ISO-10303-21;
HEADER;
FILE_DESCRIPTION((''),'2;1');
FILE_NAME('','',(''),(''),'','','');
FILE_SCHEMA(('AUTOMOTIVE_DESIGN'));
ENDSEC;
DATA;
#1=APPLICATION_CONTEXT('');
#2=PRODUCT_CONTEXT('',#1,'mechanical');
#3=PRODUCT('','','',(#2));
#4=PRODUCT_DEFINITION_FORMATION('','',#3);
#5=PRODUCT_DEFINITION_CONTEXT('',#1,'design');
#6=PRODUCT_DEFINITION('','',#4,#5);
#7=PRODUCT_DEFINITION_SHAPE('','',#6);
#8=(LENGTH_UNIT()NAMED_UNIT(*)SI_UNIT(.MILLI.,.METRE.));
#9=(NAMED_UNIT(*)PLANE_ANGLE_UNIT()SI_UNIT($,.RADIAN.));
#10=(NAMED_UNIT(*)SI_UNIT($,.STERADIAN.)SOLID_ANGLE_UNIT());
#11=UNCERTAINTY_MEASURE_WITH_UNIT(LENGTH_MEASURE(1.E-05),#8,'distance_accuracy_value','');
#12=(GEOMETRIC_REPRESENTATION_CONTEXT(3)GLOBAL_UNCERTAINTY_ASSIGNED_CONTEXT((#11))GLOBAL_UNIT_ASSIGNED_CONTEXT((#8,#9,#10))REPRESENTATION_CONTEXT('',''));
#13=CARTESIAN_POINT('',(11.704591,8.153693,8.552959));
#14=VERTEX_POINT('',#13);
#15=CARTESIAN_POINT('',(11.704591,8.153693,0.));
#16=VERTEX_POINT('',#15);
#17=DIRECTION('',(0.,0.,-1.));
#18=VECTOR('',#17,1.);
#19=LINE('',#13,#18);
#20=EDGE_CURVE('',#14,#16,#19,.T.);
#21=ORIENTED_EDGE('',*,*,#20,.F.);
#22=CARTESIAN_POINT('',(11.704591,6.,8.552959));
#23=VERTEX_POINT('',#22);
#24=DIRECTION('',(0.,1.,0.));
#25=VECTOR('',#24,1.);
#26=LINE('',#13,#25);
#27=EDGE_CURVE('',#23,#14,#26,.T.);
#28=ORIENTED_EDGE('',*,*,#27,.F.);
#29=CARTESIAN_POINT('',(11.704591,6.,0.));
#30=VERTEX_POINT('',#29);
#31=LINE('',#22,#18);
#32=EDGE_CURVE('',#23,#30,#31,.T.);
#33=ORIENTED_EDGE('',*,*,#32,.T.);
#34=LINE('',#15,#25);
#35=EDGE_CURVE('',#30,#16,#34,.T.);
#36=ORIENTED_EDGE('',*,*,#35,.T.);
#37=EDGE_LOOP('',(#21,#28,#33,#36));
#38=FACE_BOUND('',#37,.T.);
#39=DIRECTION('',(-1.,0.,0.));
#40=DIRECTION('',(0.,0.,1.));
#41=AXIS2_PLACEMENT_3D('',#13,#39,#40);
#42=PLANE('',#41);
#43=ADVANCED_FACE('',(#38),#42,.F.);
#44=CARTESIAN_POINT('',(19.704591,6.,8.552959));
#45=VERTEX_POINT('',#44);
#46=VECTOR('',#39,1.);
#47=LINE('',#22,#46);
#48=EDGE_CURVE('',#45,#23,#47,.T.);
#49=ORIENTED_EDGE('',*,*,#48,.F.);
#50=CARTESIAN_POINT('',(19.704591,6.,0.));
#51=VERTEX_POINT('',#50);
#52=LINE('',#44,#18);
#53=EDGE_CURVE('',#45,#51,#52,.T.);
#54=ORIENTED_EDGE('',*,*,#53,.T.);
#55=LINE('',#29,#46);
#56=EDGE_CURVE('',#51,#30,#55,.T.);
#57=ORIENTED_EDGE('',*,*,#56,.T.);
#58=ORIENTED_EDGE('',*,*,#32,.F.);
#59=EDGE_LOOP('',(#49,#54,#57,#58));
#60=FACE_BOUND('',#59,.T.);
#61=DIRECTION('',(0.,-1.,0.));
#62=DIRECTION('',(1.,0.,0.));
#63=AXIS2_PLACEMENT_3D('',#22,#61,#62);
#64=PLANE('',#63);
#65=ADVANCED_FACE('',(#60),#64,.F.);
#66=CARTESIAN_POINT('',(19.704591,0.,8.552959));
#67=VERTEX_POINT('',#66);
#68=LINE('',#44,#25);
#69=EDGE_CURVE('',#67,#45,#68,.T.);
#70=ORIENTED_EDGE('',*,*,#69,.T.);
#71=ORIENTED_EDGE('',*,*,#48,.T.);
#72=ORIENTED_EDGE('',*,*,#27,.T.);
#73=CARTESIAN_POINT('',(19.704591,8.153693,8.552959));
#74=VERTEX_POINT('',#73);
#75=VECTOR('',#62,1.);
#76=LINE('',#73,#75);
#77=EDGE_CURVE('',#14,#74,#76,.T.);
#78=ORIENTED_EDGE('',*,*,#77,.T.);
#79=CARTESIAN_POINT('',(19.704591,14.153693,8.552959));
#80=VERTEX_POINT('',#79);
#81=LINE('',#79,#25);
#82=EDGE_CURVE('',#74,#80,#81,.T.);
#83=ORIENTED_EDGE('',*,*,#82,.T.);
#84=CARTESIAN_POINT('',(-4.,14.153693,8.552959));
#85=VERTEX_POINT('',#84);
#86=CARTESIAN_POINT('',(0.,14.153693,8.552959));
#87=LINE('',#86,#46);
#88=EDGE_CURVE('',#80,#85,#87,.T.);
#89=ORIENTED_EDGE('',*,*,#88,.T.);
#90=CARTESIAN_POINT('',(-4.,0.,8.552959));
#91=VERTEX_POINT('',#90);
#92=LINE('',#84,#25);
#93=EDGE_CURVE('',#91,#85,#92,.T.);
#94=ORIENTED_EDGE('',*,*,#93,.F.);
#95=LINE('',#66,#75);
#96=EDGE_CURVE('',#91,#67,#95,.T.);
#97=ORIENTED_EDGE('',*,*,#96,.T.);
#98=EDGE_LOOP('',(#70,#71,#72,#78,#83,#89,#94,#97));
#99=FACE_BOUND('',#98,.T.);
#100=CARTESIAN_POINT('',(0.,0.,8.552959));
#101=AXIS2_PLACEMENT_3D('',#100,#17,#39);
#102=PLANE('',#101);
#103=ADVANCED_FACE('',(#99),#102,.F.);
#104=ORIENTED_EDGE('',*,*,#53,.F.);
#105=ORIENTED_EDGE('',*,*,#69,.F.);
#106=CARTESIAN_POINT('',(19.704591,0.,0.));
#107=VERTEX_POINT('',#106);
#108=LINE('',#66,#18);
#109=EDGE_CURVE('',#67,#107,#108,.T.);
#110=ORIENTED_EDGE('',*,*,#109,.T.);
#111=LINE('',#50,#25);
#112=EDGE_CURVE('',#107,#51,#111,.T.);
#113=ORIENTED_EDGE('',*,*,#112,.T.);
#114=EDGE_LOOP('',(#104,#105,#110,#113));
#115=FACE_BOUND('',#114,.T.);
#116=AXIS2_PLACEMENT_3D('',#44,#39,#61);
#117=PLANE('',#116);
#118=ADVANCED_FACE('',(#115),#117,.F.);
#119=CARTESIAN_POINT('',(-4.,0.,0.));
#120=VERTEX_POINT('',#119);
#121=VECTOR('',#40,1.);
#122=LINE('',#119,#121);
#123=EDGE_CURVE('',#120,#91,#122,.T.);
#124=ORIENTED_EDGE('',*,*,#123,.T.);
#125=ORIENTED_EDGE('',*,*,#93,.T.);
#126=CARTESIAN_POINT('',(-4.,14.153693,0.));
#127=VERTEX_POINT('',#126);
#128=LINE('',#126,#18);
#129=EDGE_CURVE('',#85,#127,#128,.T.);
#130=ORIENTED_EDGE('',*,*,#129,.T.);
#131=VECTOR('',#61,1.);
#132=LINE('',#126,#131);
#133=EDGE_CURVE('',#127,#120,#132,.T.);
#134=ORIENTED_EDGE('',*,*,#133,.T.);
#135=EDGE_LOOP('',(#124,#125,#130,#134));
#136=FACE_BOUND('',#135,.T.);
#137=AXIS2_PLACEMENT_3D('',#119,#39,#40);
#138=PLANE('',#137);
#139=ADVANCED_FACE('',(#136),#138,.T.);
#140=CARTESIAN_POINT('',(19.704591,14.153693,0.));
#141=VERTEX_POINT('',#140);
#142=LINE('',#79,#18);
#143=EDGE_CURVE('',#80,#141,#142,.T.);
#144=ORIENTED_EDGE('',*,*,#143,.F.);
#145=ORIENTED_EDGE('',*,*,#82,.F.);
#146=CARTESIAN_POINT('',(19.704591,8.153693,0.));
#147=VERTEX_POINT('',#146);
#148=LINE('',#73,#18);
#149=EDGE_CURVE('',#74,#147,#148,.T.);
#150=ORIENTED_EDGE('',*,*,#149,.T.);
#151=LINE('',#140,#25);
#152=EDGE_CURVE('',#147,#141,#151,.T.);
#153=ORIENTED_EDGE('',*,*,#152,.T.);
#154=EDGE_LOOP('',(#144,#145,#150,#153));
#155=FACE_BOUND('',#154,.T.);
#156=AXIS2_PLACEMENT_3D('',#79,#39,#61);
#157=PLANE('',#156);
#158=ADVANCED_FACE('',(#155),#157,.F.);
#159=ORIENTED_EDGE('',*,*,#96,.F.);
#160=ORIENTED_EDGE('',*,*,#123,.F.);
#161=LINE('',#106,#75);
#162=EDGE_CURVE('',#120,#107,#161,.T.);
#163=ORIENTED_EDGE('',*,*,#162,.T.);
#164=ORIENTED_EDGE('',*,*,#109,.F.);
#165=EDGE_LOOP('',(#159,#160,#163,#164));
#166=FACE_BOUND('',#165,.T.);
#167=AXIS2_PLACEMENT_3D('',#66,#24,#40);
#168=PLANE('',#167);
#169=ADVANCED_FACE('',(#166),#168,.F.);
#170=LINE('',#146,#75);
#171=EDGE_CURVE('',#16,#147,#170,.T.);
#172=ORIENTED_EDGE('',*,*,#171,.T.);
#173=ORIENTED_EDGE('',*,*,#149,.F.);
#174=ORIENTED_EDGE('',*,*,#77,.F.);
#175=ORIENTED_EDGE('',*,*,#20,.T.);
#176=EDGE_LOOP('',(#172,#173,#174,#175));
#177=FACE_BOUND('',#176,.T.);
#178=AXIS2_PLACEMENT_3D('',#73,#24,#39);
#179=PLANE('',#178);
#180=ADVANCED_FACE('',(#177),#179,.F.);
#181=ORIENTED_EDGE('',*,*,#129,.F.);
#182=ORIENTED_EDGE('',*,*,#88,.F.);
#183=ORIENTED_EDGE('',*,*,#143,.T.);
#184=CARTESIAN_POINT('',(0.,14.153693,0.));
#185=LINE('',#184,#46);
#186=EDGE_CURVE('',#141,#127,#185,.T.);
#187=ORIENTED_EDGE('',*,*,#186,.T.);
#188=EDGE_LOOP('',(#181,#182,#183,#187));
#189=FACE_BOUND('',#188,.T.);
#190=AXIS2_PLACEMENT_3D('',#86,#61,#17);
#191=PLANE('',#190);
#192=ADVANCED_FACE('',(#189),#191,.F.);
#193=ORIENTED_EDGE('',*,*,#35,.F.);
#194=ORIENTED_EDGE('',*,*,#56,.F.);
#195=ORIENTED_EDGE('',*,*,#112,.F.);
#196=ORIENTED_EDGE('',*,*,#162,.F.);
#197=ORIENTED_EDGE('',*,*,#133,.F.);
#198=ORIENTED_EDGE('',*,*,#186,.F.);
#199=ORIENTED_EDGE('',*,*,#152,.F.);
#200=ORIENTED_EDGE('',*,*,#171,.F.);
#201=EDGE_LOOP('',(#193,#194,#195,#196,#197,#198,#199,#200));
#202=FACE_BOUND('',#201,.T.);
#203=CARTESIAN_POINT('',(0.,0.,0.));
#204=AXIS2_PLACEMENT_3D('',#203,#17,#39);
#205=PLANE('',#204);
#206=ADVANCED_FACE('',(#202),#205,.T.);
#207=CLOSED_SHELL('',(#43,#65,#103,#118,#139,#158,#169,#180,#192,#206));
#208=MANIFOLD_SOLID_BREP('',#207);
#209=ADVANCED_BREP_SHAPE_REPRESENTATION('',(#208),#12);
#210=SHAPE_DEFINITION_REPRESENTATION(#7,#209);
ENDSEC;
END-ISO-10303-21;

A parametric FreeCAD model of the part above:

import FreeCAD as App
import Part
import Sketcher
Q = App.Units.Quantity


def add_polygon(sketch, points):
    """Adds a closed chain of lines whose ends are joined by coincident constraints."""
    first, n = sketch.GeometryCount, len(points)
    for a, b in zip(points, points[1:] + points[:1]):
        sketch.addGeometry(Part.LineSegment(App.Vector(*a, 0), App.Vector(*b, 0)), False)
    for i in range(n):
        sketch.addConstraint(Sketcher.Constraint("Coincident", first + i, 2, first + (i + 1) % n, 1))

doc = App.newDocument("Part")
params = doc.addObject("Spreadsheet::Sheet", "Params")
for row, (alias, value) in enumerate([
    ("sketch1_width", "8 mm"),
    ("sketch1_height", "6 mm"),
    ("pad1_length", "8.552959 mm"),
    ("pad2_length", "4 mm"),
], start=1):
    params.set(f"A{row}", alias)
    params.set(f"B{row}", "=" + value)
    params.setAlias(f"B{row}", alias)

body = doc.addObject("PartDesign::Body", "Body")

# Sketch on XY plane
sketch1 = body.newObject("Sketcher::SketchObject", "Sketch")
sketch1.AttachmentSupport = (doc.getObject("XY_Plane"), [""])
sketch1.MapMode = "FlatFace"
add_polygon(sketch1, [(0, 14.2), (0, 0), (19.7, 0), (19.7, 6), (11.7, 6), (11.7, 8.2), (19.7, 8.2), (19.7, 14.2)])  # lines 0-7
sketch1.addConstraint([
    Sketcher.Constraint("Vertical", 0),
    Sketcher.Constraint("Horizontal", 1),
    Sketcher.Constraint("Vertical", 2),
    Sketcher.Constraint("Horizontal", 3),
    Sketcher.Constraint("Vertical", 4),
    Sketcher.Constraint("Horizontal", 5),
    Sketcher.Constraint("Vertical", 6),
    Sketcher.Constraint("Horizontal", 7),
    Sketcher.Constraint("Coincident", 0, 2, -1, 1),
    Sketcher.Constraint("Vertical", 2, 2, 5, 2),
    Sketcher.Constraint("Equal", 2, 6),
    Sketcher.Constraint("DistanceX", 3, 2, 3, 1, Q("8 mm")),
    Sketcher.Constraint("DistanceY", 2, 1, 2, 2, Q("6 mm")),
    Sketcher.Constraint("DistanceX", 1, 1, 1, 2, Q("19.704591 mm")),
    Sketcher.Constraint("DistanceY", 0, 2, 0, 1, Q("14.153693 mm")),
])
sketch1.setExpression("Constraints[19]", "Params.sketch1_width")
sketch1.setExpression("Constraints[20]", "Params.sketch1_height")
pad1 = body.newObject("PartDesign::Pad", "Pad")
pad1.Profile = sketch1
pad1.setExpression("Length", "Params.pad1_length")

# Sketch on YZ plane
sketch2 = body.newObject("Sketcher::SketchObject", "Sketch001")
sketch2.AttachmentSupport = (doc.getObject("YZ_Plane"), [""])
sketch2.MapMode = "FlatFace"
add_polygon(sketch2, [(14, 0), (0, 0), (0, 9), (14, 9)])  # lines 0-3
sketch2.addConstraint([
    Sketcher.Constraint("Horizontal", 0),
    Sketcher.Constraint("Vertical", 1),
    Sketcher.Constraint("Horizontal", 2),
    Sketcher.Constraint("Vertical", 3),
    Sketcher.Constraint("Coincident", 0, 2, -1, 1),
    Sketcher.Constraint("DistanceY", 1, 1, 1, 2, Q("8.552959 mm")),
    Sketcher.Constraint("DistanceX", 0, 2, 0, 1, Q("14.153693 mm")),
])
pad2 = body.newObject("PartDesign::Pad", "Pad001")
pad2.Profile = sketch2
pad2.setExpression("Length", "Params.pad2_length")
pad2.Reversed = True

doc.recompute()
